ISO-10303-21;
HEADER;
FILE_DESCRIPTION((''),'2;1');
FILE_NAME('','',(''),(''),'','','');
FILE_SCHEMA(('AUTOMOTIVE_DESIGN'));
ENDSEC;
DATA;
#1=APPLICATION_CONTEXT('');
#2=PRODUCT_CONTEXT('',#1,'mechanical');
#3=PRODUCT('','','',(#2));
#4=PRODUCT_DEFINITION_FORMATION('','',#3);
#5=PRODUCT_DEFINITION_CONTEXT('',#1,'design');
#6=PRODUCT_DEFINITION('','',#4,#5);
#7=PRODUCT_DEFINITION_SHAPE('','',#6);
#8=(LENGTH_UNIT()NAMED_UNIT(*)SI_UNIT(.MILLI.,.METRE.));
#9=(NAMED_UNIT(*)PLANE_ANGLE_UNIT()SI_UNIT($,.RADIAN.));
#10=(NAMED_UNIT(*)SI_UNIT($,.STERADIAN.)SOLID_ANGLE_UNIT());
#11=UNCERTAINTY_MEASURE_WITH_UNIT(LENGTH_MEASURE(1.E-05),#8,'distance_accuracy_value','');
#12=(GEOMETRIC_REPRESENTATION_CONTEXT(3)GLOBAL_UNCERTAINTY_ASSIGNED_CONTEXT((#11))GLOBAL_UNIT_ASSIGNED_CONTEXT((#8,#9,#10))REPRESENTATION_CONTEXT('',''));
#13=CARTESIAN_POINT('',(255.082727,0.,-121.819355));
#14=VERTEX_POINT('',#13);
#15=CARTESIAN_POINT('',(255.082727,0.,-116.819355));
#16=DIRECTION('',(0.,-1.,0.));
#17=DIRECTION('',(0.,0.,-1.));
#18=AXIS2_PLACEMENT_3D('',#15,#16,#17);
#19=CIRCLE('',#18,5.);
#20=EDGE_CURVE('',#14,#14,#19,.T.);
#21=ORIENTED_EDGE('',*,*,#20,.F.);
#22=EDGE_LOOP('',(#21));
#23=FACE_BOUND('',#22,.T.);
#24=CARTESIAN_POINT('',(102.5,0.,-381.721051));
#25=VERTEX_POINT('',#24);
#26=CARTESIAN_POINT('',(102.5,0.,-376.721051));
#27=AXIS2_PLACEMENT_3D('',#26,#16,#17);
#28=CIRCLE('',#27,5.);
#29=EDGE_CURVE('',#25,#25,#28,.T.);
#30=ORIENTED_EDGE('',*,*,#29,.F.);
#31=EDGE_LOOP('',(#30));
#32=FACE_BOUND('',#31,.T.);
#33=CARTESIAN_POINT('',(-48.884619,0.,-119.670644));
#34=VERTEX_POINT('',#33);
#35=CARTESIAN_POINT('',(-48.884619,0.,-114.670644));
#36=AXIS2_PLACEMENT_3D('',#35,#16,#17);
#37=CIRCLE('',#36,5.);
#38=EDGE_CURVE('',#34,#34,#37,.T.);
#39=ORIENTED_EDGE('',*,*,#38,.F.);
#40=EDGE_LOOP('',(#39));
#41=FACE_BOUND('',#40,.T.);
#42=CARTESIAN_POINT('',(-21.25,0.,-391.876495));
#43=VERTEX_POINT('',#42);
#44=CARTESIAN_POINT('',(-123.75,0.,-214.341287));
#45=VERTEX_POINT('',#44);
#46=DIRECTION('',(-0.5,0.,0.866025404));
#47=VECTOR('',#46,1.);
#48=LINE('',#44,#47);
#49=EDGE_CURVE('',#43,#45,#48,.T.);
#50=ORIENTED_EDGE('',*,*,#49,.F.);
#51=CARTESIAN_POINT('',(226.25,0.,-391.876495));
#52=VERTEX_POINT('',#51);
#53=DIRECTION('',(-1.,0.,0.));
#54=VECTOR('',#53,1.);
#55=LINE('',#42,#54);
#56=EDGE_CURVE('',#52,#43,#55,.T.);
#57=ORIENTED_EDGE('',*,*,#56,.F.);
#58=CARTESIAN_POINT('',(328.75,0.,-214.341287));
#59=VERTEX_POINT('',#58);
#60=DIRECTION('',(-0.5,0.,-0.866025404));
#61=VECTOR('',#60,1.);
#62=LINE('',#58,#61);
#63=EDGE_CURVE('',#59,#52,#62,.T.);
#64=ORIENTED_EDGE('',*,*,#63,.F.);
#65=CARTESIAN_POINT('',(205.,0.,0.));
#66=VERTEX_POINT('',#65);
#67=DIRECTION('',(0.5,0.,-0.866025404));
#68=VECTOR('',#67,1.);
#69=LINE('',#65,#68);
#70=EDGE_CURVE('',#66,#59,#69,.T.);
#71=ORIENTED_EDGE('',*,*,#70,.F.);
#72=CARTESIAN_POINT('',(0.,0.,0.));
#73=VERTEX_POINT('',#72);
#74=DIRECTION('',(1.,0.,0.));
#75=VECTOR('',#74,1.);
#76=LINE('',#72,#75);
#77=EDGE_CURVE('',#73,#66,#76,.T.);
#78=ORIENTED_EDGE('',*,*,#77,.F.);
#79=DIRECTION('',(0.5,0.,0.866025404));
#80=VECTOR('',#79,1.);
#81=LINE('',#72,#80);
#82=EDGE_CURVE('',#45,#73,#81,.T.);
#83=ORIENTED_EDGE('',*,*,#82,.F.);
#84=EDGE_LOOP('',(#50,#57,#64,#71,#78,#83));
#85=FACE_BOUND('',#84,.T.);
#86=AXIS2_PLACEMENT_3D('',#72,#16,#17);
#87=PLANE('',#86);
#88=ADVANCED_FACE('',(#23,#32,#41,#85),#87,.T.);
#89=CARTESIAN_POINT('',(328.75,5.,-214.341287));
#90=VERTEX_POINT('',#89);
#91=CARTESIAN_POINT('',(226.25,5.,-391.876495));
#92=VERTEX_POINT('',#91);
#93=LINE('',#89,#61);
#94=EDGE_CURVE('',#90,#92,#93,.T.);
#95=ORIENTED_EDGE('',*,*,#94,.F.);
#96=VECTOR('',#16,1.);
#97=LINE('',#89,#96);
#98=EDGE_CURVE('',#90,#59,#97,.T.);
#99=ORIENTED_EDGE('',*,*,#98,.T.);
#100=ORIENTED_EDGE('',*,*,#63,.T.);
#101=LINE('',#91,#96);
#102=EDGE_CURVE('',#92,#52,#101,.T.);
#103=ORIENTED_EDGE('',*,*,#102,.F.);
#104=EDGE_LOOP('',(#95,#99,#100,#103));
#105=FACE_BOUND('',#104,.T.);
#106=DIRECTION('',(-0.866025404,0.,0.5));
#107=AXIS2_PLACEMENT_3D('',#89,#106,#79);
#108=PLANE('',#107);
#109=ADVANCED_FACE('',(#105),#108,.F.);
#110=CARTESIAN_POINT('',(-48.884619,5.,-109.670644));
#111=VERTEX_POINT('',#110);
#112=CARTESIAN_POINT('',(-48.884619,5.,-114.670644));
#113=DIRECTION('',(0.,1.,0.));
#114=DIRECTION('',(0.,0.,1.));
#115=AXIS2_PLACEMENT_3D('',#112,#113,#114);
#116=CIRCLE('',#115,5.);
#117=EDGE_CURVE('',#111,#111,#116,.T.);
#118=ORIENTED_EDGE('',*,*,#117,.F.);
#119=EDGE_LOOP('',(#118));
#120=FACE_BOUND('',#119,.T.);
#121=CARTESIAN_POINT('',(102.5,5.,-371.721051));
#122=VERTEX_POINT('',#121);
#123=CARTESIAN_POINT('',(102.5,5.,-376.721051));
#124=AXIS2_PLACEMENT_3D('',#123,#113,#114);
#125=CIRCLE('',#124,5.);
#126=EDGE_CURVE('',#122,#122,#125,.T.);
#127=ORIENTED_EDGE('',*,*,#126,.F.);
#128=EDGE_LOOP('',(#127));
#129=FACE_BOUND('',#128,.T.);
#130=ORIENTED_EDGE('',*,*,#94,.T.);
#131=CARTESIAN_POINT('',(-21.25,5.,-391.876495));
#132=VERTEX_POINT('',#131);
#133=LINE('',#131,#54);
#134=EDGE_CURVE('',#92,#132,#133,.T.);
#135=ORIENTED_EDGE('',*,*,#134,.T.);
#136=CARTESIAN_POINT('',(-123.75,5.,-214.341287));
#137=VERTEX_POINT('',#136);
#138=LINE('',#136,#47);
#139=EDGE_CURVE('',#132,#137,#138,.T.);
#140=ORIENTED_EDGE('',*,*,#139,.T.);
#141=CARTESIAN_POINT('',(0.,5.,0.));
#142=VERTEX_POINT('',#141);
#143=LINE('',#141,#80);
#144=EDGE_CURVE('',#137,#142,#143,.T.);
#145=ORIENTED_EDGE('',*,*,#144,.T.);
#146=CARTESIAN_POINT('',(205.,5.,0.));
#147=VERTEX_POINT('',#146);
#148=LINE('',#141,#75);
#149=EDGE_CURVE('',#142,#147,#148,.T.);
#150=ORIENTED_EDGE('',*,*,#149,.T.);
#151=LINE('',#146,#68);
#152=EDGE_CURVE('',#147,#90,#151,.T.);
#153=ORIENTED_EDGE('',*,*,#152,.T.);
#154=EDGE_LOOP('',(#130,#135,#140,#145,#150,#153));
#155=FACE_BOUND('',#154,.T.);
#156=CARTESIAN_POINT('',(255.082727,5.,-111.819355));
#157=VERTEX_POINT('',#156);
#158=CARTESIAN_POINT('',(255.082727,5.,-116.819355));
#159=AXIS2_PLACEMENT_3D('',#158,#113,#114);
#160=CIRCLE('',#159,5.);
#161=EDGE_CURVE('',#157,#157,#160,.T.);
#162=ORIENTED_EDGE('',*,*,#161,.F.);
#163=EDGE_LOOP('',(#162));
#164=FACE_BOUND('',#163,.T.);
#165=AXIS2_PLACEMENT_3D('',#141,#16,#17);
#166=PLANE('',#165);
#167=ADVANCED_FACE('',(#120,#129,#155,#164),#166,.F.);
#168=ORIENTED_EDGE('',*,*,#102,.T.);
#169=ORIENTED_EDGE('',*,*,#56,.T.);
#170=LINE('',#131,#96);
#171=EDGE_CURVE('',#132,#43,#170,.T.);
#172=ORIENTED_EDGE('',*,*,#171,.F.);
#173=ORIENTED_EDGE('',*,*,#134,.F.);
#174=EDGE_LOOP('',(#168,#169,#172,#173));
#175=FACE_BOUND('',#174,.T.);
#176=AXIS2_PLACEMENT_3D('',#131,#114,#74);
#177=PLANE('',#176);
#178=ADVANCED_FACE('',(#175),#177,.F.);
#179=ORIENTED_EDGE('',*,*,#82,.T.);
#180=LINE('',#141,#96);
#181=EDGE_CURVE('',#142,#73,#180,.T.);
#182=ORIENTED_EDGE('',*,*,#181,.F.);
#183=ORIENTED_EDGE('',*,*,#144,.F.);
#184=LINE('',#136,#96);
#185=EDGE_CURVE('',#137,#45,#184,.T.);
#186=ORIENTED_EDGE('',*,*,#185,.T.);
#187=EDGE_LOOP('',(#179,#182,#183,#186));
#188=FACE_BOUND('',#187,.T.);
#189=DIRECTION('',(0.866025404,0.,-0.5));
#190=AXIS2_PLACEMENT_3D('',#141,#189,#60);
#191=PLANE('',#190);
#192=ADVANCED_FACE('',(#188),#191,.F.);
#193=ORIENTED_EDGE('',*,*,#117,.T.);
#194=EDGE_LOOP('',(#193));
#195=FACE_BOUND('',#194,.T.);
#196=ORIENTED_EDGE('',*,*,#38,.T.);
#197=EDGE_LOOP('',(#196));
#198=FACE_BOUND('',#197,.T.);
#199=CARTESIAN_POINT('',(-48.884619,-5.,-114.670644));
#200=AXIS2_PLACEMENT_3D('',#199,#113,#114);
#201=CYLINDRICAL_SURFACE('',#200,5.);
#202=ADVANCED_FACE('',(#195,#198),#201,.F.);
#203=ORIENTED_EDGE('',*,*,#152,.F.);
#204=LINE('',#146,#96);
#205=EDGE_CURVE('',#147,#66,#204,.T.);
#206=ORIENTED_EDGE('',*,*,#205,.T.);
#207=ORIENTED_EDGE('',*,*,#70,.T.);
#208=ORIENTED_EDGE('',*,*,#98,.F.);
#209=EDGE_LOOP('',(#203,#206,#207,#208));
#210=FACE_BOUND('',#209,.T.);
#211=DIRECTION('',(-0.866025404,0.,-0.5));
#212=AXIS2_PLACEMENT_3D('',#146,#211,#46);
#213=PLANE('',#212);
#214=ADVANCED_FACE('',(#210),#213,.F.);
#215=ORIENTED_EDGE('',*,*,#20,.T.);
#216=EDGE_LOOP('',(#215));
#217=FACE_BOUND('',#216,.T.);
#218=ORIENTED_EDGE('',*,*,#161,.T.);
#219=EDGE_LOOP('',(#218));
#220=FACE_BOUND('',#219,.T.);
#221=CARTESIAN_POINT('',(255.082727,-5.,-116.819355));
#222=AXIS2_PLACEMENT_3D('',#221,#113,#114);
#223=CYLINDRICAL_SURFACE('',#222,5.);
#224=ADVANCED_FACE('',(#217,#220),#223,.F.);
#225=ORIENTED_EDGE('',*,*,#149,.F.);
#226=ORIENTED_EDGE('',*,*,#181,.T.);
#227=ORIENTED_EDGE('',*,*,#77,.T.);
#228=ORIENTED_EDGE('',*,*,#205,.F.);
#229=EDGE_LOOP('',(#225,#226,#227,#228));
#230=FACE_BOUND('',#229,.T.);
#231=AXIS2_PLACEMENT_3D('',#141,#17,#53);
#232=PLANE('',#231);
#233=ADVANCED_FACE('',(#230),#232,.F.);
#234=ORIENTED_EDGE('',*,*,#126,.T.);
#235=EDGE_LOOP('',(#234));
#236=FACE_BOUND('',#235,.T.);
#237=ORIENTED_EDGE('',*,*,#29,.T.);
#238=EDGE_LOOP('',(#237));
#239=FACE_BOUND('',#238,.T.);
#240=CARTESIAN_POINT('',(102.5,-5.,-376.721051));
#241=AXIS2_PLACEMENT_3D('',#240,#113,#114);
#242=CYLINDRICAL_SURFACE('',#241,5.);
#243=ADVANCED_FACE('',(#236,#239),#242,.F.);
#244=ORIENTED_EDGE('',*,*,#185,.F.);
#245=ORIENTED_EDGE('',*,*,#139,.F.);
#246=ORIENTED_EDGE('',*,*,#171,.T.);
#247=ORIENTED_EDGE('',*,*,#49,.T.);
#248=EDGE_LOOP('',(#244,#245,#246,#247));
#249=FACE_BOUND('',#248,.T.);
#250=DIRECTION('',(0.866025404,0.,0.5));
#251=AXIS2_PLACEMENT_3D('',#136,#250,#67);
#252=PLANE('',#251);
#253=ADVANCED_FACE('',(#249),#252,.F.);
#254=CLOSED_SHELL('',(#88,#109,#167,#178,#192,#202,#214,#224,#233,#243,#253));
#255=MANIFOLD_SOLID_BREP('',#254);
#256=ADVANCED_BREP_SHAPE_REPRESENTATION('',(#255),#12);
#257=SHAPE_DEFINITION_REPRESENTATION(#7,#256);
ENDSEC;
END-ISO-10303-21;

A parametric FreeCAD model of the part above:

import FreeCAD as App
import Part
import Sketcher

V = App.Vector
Q = App.Units.Quantity


def add_polygon(sketch, points):
    """Adds a closed chain of lines whose ends are joined by coincident constraints."""
    first, n = sketch.GeometryCount, len(points)
    for a, b in zip(points, points[1:] + points[:1]):
        sketch.addGeometry(Part.LineSegment(App.Vector(*a, 0), App.Vector(*b, 0)), False)
    for i in range(n):
        sketch.addConstraint(Sketcher.Constraint("Coincident", first + i, 2, first + (i + 1) % n, 1))

doc = App.newDocument("Part")
body = doc.addObject("PartDesign::Body", "Body")

# Sketch on XZ plane
sketch1 = body.newObject("Sketcher::SketchObject", "Sketch")
sketch1.AttachmentSupport = (doc.getObject("XZ_Plane"), [""])
sketch1.MapMode = "FlatFace"
add_polygon(sketch1, [(0, 0), (205, 0), (329, -214), (226, -392), (-21, -392), (-124, -214)])  # lines 0-5
sketch1.addConstraint(Sketcher.Constraint("Horizontal", 0))
sketch1.addConstraint(Sketcher.Constraint("Horizontal", 3))
sketch1.addConstraint(Sketcher.Constraint("Coincident", 5, 2, -1, 1))
sketch1.addConstraint(Sketcher.Constraint("Parallel", 1, 4))
sketch1.addConstraint(Sketcher.Constraint("Parallel", 2, 5))
sketch1.addConstraint(Sketcher.Constraint("Horizontal", 1, 2, 4, 2))
sketch1.addConstraint(Sketcher.Constraint("Equal", 2, 4))
sketch1.addConstraint(Sketcher.Constraint("DistanceX", 0, 1, 0, 2, Q("205 mm")))
sketch1.addConstraint(Sketcher.Constraint("Angle", 1, Q("-60 deg")))
sketch1.addConstraint(Sketcher.Constraint("Distance", 2, Q("205 mm")))
sketch1.addConstraint(Sketcher.Constraint("DistanceX", 3, 2, 3, 1, Q("247.5 mm")))
pad1 = body.newObject("PartDesign::Pad", "Pad")
pad1.Profile = sketch1
pad1.Length = 5
pad1.Reversed = True

# Sketch on XZ plane
sketch2 = body.newObject("Sketcher::SketchObject", "Sketch001")
sketch2.AttachmentSupport = (doc.getObject("XZ_Plane"), [""])
sketch2.MapMode = "FlatFace"
sketch2.AttachmentOffset = App.Placement(V(0, 0, -5), App.Rotation())
sketch2.addGeometry(Part.Circle(V(102, -377, 0), V(0, 0, 1), 5), False)
sketch2.addGeometry(Part.Circle(V(255, -117, 0), V(0, 0, 1), 5), False)
sketch2.addGeometry(Part.Circle(V(-49, -115, 0), V(0, 0, 1), 5), False)
sketch2.addConstraint(Sketcher.Constraint("Equal", 0, 1))
sketch2.addConstraint(Sketcher.Constraint("Equal", 1, 2))
sketch2.addConstraint(Sketcher.Constraint("Diameter", 0, Q("10 mm")))
sketch2.addConstraint(Sketcher.Constraint("DistanceX", -1, 1, 0, 3, Q("102.5 mm")))
sketch2.addConstraint(Sketcher.Constraint("DistanceY", 0, 3, -1, 1, Q("376.721051 mm")))
sketch2.addConstraint(Sketcher.Constraint("DistanceX", 2, 3, -1, 1, Q("48.884619 mm")))
sketch2.addConstraint(Sketcher.Constraint("DistanceY", 1, 3, 2, 3, Q("2.148711 mm")))
sketch2.addConstraint(Sketcher.Constraint("DistanceX", -1, 1, 1, 3, Q("255.082727 mm")))
sketch2.addConstraint(Sketcher.Constraint("DistanceY", 1, 3, -1, 1, Q("116.819355 mm")))
pocket1 = body.newObject("PartDesign::Pocket", "Pocket")
pocket1.Profile = sketch2
pocket1.Length = 10
pocket1.Reversed = True

doc.recompute()
